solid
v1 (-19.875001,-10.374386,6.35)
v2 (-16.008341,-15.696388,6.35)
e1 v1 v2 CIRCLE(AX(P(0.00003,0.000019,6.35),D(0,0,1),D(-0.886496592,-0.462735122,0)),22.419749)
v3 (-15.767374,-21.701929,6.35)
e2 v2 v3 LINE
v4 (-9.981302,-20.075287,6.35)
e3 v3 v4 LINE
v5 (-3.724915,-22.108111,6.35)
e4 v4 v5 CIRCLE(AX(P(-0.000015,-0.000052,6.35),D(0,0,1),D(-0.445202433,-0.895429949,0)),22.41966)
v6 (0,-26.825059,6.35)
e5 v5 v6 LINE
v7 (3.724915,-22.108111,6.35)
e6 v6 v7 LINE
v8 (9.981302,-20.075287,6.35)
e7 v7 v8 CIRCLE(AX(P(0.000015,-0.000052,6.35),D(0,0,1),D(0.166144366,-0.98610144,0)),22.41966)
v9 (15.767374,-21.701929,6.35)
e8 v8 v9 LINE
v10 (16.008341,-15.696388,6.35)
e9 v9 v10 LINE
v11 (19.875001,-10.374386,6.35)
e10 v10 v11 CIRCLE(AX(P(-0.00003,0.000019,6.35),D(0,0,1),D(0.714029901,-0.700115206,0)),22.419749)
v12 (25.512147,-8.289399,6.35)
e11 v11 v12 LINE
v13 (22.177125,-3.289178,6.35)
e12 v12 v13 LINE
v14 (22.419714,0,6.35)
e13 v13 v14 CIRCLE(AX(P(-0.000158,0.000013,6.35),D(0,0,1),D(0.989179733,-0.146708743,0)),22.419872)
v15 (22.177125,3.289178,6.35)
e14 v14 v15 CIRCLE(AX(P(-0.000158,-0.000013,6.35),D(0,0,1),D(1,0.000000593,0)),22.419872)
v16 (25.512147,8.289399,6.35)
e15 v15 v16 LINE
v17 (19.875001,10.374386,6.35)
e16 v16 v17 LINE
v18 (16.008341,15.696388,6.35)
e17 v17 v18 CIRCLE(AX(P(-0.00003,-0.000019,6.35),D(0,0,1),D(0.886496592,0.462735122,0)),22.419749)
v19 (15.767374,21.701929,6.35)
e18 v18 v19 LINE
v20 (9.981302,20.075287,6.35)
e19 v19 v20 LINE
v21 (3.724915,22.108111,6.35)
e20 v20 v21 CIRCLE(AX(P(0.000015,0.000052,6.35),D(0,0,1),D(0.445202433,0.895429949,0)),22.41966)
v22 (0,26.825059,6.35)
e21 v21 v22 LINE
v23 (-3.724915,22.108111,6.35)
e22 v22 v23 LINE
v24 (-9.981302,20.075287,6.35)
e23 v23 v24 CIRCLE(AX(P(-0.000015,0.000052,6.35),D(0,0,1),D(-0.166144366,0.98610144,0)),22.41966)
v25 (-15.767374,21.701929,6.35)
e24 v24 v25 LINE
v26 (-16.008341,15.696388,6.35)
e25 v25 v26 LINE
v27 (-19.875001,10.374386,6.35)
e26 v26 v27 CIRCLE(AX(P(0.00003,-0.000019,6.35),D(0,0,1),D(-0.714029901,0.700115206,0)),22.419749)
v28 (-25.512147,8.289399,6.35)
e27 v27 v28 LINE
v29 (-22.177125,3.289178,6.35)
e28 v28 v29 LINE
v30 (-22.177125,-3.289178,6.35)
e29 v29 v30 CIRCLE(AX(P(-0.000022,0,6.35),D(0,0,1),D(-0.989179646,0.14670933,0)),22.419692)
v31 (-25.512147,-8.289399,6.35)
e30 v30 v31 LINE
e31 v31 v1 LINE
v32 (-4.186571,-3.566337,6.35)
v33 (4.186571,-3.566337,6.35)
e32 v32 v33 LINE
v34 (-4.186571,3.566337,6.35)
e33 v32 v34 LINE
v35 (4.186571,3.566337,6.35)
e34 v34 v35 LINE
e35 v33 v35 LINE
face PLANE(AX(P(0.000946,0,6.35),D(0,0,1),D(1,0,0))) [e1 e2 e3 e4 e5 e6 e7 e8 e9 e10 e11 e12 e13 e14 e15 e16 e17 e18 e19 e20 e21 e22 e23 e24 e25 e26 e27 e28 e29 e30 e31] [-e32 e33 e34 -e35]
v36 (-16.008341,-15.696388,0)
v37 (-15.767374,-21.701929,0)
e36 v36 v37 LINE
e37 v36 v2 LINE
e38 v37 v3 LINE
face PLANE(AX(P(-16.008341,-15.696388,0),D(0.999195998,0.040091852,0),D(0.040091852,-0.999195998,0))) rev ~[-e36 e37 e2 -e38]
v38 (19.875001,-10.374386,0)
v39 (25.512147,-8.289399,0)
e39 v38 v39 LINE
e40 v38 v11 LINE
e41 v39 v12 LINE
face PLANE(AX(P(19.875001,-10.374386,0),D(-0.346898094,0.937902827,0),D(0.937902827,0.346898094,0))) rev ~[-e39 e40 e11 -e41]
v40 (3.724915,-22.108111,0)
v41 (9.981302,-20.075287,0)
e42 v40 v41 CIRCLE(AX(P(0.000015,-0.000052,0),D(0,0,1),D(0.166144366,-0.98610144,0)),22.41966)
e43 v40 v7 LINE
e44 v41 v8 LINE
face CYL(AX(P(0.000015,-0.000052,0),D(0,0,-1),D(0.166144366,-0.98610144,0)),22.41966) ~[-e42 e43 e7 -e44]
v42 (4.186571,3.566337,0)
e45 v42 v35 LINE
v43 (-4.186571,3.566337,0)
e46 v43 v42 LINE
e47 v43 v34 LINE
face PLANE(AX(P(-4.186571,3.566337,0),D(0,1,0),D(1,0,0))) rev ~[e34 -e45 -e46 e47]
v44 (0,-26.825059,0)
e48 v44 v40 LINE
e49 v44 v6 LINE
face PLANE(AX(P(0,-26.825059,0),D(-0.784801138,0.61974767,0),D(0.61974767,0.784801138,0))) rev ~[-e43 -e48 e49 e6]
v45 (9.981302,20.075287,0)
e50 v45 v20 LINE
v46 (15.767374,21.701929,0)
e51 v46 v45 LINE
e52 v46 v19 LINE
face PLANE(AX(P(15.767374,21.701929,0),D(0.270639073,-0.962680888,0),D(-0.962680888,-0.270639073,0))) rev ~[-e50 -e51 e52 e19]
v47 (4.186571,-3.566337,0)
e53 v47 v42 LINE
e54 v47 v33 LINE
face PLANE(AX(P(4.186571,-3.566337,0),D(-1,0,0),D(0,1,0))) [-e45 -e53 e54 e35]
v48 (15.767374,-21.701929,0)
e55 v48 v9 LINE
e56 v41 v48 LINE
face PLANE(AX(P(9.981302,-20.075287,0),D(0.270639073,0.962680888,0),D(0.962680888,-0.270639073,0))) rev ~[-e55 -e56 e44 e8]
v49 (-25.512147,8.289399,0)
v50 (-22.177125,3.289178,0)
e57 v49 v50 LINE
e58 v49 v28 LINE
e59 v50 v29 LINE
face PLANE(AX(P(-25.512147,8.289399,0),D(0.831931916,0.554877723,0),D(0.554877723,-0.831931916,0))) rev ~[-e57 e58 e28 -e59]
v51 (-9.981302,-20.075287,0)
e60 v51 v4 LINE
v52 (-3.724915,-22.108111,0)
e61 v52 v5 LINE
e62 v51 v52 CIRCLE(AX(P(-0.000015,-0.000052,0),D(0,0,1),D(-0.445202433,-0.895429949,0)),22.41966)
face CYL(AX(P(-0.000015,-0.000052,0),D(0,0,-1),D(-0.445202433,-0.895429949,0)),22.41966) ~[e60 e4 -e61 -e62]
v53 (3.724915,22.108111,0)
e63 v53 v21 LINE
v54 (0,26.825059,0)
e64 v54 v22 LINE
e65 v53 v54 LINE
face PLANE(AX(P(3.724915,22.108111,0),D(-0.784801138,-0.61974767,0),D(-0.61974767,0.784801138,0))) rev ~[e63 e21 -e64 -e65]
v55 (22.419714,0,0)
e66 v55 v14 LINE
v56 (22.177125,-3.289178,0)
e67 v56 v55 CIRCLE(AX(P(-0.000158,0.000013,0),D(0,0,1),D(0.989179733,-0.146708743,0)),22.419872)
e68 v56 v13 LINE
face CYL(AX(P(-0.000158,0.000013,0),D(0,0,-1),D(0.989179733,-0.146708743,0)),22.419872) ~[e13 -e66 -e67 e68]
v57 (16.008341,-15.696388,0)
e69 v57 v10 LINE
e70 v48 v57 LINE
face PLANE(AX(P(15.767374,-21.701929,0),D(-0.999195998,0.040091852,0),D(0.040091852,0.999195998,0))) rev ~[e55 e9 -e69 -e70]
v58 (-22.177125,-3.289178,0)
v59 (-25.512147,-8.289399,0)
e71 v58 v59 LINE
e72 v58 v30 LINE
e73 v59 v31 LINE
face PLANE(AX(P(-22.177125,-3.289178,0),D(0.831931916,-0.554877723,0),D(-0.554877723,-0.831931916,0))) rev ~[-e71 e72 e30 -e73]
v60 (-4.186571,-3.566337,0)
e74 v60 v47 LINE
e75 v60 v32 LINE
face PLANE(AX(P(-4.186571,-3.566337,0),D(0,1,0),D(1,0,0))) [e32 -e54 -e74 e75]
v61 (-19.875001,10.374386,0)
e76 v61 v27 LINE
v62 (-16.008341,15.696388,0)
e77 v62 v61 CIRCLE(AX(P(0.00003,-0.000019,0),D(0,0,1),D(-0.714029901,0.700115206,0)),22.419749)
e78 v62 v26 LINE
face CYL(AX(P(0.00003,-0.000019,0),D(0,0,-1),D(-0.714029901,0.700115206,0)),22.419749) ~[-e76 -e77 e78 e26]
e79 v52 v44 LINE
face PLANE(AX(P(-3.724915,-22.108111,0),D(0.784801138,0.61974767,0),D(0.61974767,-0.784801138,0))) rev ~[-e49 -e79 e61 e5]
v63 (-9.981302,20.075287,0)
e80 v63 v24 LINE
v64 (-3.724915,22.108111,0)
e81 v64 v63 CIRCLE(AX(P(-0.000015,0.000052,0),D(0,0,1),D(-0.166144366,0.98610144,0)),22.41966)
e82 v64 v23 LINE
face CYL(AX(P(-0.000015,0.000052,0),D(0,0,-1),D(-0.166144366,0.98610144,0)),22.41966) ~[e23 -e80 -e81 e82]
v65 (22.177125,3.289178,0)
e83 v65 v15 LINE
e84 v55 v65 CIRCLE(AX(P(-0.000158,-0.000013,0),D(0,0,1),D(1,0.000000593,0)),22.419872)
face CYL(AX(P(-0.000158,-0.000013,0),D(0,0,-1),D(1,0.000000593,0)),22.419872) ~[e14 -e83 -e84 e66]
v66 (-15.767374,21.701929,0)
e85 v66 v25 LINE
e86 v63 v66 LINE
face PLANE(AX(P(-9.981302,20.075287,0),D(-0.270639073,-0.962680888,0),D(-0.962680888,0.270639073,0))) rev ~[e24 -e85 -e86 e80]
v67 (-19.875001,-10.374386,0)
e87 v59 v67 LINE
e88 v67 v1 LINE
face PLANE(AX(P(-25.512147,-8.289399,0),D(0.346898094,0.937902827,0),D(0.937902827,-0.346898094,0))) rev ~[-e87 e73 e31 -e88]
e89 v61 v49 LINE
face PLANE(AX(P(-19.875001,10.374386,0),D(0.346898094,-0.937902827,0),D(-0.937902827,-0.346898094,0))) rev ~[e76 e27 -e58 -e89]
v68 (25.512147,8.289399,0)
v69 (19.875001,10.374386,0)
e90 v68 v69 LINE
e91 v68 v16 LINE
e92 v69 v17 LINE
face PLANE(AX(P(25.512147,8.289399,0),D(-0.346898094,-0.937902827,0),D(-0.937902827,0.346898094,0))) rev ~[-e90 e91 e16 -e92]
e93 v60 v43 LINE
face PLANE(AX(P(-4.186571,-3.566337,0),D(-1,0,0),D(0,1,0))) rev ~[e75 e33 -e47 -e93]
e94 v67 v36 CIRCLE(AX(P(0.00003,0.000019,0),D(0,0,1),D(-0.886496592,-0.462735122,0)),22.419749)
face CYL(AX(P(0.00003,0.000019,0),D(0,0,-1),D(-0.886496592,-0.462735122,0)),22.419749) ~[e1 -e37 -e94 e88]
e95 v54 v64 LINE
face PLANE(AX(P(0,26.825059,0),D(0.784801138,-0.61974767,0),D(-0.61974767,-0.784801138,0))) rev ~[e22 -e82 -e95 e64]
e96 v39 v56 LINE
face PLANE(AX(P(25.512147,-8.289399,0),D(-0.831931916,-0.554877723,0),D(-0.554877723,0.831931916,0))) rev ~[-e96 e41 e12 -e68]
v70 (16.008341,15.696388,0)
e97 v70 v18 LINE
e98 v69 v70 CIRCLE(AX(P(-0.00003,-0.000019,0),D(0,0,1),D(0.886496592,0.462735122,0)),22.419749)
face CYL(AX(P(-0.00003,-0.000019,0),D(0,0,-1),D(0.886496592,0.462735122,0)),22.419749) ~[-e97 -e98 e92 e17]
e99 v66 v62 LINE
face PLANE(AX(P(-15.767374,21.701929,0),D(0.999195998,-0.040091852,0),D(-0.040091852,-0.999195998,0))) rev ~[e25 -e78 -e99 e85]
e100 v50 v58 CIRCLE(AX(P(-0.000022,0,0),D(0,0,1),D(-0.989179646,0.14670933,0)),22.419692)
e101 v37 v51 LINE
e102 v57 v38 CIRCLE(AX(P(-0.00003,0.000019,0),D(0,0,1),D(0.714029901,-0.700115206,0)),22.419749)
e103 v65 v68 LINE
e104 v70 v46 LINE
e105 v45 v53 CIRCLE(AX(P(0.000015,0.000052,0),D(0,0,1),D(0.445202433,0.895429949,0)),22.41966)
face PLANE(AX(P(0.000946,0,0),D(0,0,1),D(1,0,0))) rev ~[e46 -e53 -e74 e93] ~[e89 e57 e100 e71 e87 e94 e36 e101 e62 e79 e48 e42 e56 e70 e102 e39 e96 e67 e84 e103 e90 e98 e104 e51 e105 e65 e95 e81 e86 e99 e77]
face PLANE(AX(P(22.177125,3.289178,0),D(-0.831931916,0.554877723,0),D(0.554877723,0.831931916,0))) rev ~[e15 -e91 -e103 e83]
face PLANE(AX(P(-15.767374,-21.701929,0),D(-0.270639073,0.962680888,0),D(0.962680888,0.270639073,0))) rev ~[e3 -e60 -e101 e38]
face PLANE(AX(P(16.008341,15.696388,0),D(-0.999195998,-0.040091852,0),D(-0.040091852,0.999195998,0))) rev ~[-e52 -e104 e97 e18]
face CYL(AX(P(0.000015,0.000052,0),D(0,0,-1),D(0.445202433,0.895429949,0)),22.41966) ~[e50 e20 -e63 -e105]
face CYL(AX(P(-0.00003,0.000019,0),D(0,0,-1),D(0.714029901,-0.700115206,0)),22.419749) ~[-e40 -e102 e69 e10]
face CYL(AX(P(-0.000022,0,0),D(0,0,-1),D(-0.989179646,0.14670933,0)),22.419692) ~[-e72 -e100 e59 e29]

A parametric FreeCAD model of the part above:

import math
import FreeCAD as App
import Part
import Sketcher

V = App.Vector
Q = App.Units.Quantity


def add_polygon(sketch, points):
    """Adds a closed chain of lines whose ends are joined by coincident constraints."""
    first, n = sketch.GeometryCount, len(points)
    for a, b in zip(points, points[1:] + points[:1]):
        sketch.addGeometry(Part.LineSegment(App.Vector(*a, 0), App.Vector(*b, 0)), False)
    for i in range(n):
        sketch.addConstraint(Sketcher.Constraint("Coincident", first + i, 2, first + (i + 1) % n, 1))

doc = App.newDocument("Part")
params = doc.addObject("Spreadsheet::Sheet", "Params")
for row, (alias, value) in enumerate([
    ("pad1_length", "0.25 in"),
], start=1):
    params.set(f"A{row}", alias)
    params.set(f"B{row}", "=" + value)
    params.setAlias(f"B{row}", alias)

body = doc.addObject("PartDesign::Body", "Body")

sketch1 = body.newObject("Sketcher::SketchObject", "Sketch")
sketch1.AttachmentSupport = (doc.getObject("XY_Plane"), [""])
sketch1.MapMode = "FlatFace"
sketch1.addGeometry(Part.ArcOfCircle(Part.Circle(V(-0.000158, 0.000013, 0), V(0, 0, 1), 22.419872), math.radians(-8.436241), math.radians(-0.000034)), False)
sketch1.addGeometry(Part.ArcOfCircle(Part.Circle(V(-0.000158, -0.000013, 0), V(0, 0, 1), 22.419872), math.radians(0.000034), math.radians(8.436241)), False)
sketch1.addGeometry(Part.LineSegment(V(22.177125, 3.289178, 0), V(25.512147, 8.289399, 0)), False)
sketch1.addGeometry(Part.LineSegment(V(25.512147, 8.289399, 0), V(19.875001, 10.374386, 0)), False)
sketch1.addGeometry(Part.ArcOfCircle(Part.Circle(V(-0.00003, -0.000019, 0), V(0, 0, 1), 22.419749), math.radians(27.563741), math.radians(44.436248)), False)
sketch1.addGeometry(Part.LineSegment(V(16.008341, 15.696388, 0), V(15.767374, 21.701929, 0)), False)
sketch1.addGeometry(Part.LineSegment(V(15.767374, 21.701929, 0), V(9.981302, 20.075287, 0)), False)
sketch1.addGeometry(Part.ArcOfCircle(Part.Circle(V(0.000015, 0.000052, 0), V(0, 0, 1), 22.41966), math.radians(63.563709), math.radians(80.436281)), False)
sketch1.addGeometry(Part.LineSegment(V(3.724915, 22.108111, 0), V(0, 26.825059, 0)), False)
sketch1.addGeometry(Part.LineSegment(V(0, 26.825059, 0), V(-3.724915, 22.108111, 0)), False)
sketch1.addGeometry(Part.ArcOfCircle(Part.Circle(V(-0.000015, 0.000052, 0), V(0, 0, 1), 22.41966), math.radians(99.563719), math.radians(116.436291)), False)
sketch1.addGeometry(Part.LineSegment(V(-9.981302, 20.075287, 0), V(-15.767374, 21.701929, 0)), False)
sketch1.addGeometry(Part.LineSegment(V(-15.767374, 21.701929, 0), V(-16.008341, 15.696388, 0)), False)
sketch1.addGeometry(Part.ArcOfCircle(Part.Circle(V(0.00003, -0.000019, 0), V(0, 0, 1), 22.419749), math.radians(135.563752), math.radians(152.436259)), False)
sketch1.addGeometry(Part.LineSegment(V(-19.875001, 10.374386, 0), V(-25.512147, 8.289399, 0)), False)
sketch1.addGeometry(Part.LineSegment(V(-25.512147, 8.289399, 0), V(-22.177125, 3.289178, 0)), False)
sketch1.addGeometry(Part.ArcOfCircle(Part.Circle(V(-0.000022, 0, 0), V(0, 0, 1), 22.419692), math.radians(171.563725), math.radians(188.436275)), False)
sketch1.addGeometry(Part.LineSegment(V(-22.177125, -3.289178, 0), V(-25.512147, -8.289399, 0)), False)
sketch1.addGeometry(Part.LineSegment(V(-25.512147, -8.289399, 0), V(-19.875001, -10.374386, 0)), False)
sketch1.addGeometry(Part.ArcOfCircle(Part.Circle(V(0.00003, 0.000019, 0), V(0, 0, 1), 22.419749), math.radians(-152.436259), math.radians(-135.563752)), False)
sketch1.addGeometry(Part.LineSegment(V(-16.008341, -15.696388, 0), V(-15.767374, -21.701929, 0)), False)
sketch1.addGeometry(Part.LineSegment(V(-15.767374, -21.701929, 0), V(-9.981302, -20.075287, 0)), False)
sketch1.addGeometry(Part.ArcOfCircle(Part.Circle(V(-0.000015, -0.000052, 0), V(0, 0, 1), 22.41966), math.radians(-116.436291), math.radians(-99.563719)), False)
sketch1.addGeometry(Part.LineSegment(V(-3.724915, -22.108111, 0), V(0, -26.825059, 0)), False)
sketch1.addGeometry(Part.LineSegment(V(0, -26.825059, 0), V(3.724915, -22.108111, 0)), False)
sketch1.addGeometry(Part.ArcOfCircle(Part.Circle(V(0.000015, -0.000052, 0), V(0, 0, 1), 22.41966), math.radians(-80.436281), math.radians(-63.563709)), False)
sketch1.addGeometry(Part.LineSegment(V(9.981302, -20.075287, 0), V(15.767374, -21.701929, 0)), False)
sketch1.addGeometry(Part.LineSegment(V(15.767374, -21.701929, 0), V(16.008341, -15.696388, 0)), False)
sketch1.addGeometry(Part.ArcOfCircle(Part.Circle(V(-0.00003, 0.000019, 0), V(0, 0, 1), 22.419749), math.radians(-44.436248), math.radians(-27.563741)), False)
sketch1.addGeometry(Part.LineSegment(V(19.875001, -10.374386, 0), V(25.512147, -8.289399, 0)), False)
sketch1.addGeometry(Part.LineSegment(V(25.512147, -8.289399, 0), V(22.177125, -3.289178, 0)), False)
add_polygon(sketch1, [(4.186571, -3.566337), (-4.186571, -3.566337), (-4.186571, 3.566337), (4.186571, 3.566337)])
sketch1.addConstraint([
    Sketcher.Constraint("Tangent", 0, 2, 1, 1),
    Sketcher.Constraint("Coincident", 1, 2, 2, 1),
    Sketcher.Constraint("Coincident", 2, 2, 3, 1),
    Sketcher.Constraint("Coincident", 3, 2, 4, 1),
    Sketcher.Constraint("Coincident", 4, 2, 5, 1),
    Sketcher.Constraint("Coincident", 5, 2, 6, 1),
    Sketcher.Constraint("Coincident", 6, 2, 7, 1),
    Sketcher.Constraint("Coincident", 7, 2, 8, 1),
    Sketcher.Constraint("Coincident", 8, 2, 9, 1),
    Sketcher.Constraint("Coincident", 9, 2, 10, 1),
    Sketcher.Constraint("Coincident", 10, 2, 11, 1),
    Sketcher.Constraint("Coincident", 11, 2, 12, 1),
    Sketcher.Constraint("Coincident", 12, 2, 13, 1),
    Sketcher.Constraint("Coincident", 13, 2, 14, 1),
    Sketcher.Constraint("Coincident", 14, 2, 15, 1),
    Sketcher.Constraint("Coincident", 15, 2, 16, 1),
    Sketcher.Constraint("Coincident", 16, 2, 17, 1),
    Sketcher.Constraint("Coincident", 17, 2, 18, 1),
    Sketcher.Constraint("Coincident", 18, 2, 19, 1),
    Sketcher.Constraint("Coincident", 19, 2, 20, 1),
    Sketcher.Constraint("Coincident", 20, 2, 21, 1),
    Sketcher.Constraint("Coincident", 21, 2, 22, 1),
    Sketcher.Constraint("Coincident", 22, 2, 23, 1),
    Sketcher.Constraint("Coincident", 23, 2, 24, 1),
    Sketcher.Constraint("Coincident", 24, 2, 25, 1),
    Sketcher.Constraint("Coincident", 25, 2, 26, 1),
    Sketcher.Constraint("Coincident", 26, 2, 27, 1),
    Sketcher.Constraint("Coincident", 27, 2, 28, 1),
    Sketcher.Constraint("Coincident", 28, 2, 29, 1),
    Sketcher.Constraint("Coincident", 29, 2, 30, 1),
    Sketcher.Constraint("Coincident", 30, 2, 0, 1),
    Sketcher.Constraint("Horizontal", 31),
    Sketcher.Constraint("Vertical", 32),
    Sketcher.Constraint("Horizontal", 33),
    Sketcher.Constraint("Vertical", 34),
    Sketcher.Constraint("Equal", 0, 1),
    Sketcher.Constraint("Equal", 7, 10),
    Sketcher.Constraint("Equal", 4, 13),
    Sketcher.Constraint("Equal", 13, 19),
    Sketcher.Constraint("Equal", 10, 22),
    Sketcher.Constraint("Equal", 22, 25),
    Sketcher.Constraint("Equal", 19, 28),
    Sketcher.Constraint("Symmetric", 4, 3, 19, 3, -1, 1),
    Sketcher.Constraint("Symmetric", 7, 3, 22, 3, -1, 1),
    Sketcher.Constraint("Symmetric", 10, 3, 25, 3, -1, 1),
    Sketcher.Constraint("Symmetric", 13, 3, 28, 3, -1, 1),
    Sketcher.Constraint("Symmetric", 1, 2, 16, 2, -1, 1),
    Sketcher.Constraint("Symmetric", 2, 2, 17, 2, -1, 1),
    Sketcher.Constraint("Symmetric", 5, 2, 20, 2, -1, 1),
    Sketcher.Constraint("Symmetric", 8, 2, 23, 2, -1, 1),
    Sketcher.Constraint("Symmetric", 11, 2, 26, 2, -1, 1),
    Sketcher.Constraint("Symmetric", 14, 2, 29, 2, -1, 1),
    Sketcher.Constraint("Symmetric", 15, 2, 30, 2, -1, 1),
    Sketcher.Constraint("Symmetric", 31, 2, 33, 2, -1, 1),
    Sketcher.Constraint("Symmetric", 7, 3, 10, 3, -2),
    Sketcher.Constraint("Symmetric", 4, 3, 13, 3, -2),
    Sketcher.Constraint("Symmetric", 5, 2, 11, 2, -2),
    Sketcher.Constraint("Symmetric", 2, 2, 14, 2, -2),
    Sketcher.Constraint("Symmetric", 1, 2, 15, 2, -2),
    Sketcher.Constraint("PointOnObject", 0, 2, -1),
    Sketcher.Constraint("PointOnObject", 8, 2, -2),
    Sketcher.Constraint("Parallel", 3, 18),
    Sketcher.Constraint("Parallel", 5, 20),
    Sketcher.Constraint("Parallel", 6, 21),
    Sketcher.Constraint("Parallel", 8, 23),
    Sketcher.Constraint("Parallel", 9, 24),
    Sketcher.Constraint("Parallel", 11, 26),
    Sketcher.Constraint("Parallel", 12, 27),
    Sketcher.Constraint("Parallel", 14, 29),
    Sketcher.Constraint("Horizontal", 7, 2, 9, 2),
    Sketcher.Constraint("Horizontal", 6, 2, 10, 2),
    Sketcher.Constraint("Horizontal", 4, 2, 12, 2),
    Sketcher.Constraint("Horizontal", 3, 2, 13, 2),
    Sketcher.Constraint("Equal", 2, 3),
    Sketcher.Constraint("Equal", 3, 5),
    Sketcher.Constraint("Equal", 5, 6),
    Sketcher.Constraint("Equal", 6, 8),
    Sketcher.Constraint("Radius", 4, 22.419749),
    Sketcher.Constraint("Radius", 7, 22.41966),
    Sketcher.Constraint("Radius", 0, 22.419872),
    Sketcher.Constraint("Radius", 16, 22.419692),
    Sketcher.Constraint("DistanceX", 1, 2, 2, 2, Q("0.1313001 in")),
    Sketcher.Constraint("DistanceX", 9, 2, 4, 2, Q("0.7768998 in")),
    Sketcher.Constraint("DistanceY", -1, 1, 2, 2, 8.289399),
    Sketcher.Constraint("DistanceX", -1, 1, 3, 2, 19.875001),
    Sketcher.Constraint("DistanceX", 10, 2, -1, 1, 9.981302),
    Sketcher.Constraint("DistanceX", 7, 3, 0, 2, 22.419699),
    Sketcher.Constraint("DistanceY", 4, 2, 6, 2, 4.378899),
    Sketcher.Constraint("DistanceY", 3, 2, 6, 2, 9.700901),
    Sketcher.Constraint("DistanceX", 7, 3, 7, 2, 3.7249),
    Sketcher.Constraint("DistanceX", 28, 3, 33, 2, 4.186601),
    Sketcher.Constraint("DistanceX", 31, 2, 31, 1, 8.373142),
    Sketcher.Constraint("DistanceY", 32, 1, 32, 2, 7.132674),
    Sketcher.Constraint("DistanceY", -1, 1, 4, 2, 15.696388),
])
pad1 = body.newObject("PartDesign::Pad", "Pad")
pad1.Profile = sketch1
pad1.setExpression("Length", "Params.pad1_length")

doc.recompute()
